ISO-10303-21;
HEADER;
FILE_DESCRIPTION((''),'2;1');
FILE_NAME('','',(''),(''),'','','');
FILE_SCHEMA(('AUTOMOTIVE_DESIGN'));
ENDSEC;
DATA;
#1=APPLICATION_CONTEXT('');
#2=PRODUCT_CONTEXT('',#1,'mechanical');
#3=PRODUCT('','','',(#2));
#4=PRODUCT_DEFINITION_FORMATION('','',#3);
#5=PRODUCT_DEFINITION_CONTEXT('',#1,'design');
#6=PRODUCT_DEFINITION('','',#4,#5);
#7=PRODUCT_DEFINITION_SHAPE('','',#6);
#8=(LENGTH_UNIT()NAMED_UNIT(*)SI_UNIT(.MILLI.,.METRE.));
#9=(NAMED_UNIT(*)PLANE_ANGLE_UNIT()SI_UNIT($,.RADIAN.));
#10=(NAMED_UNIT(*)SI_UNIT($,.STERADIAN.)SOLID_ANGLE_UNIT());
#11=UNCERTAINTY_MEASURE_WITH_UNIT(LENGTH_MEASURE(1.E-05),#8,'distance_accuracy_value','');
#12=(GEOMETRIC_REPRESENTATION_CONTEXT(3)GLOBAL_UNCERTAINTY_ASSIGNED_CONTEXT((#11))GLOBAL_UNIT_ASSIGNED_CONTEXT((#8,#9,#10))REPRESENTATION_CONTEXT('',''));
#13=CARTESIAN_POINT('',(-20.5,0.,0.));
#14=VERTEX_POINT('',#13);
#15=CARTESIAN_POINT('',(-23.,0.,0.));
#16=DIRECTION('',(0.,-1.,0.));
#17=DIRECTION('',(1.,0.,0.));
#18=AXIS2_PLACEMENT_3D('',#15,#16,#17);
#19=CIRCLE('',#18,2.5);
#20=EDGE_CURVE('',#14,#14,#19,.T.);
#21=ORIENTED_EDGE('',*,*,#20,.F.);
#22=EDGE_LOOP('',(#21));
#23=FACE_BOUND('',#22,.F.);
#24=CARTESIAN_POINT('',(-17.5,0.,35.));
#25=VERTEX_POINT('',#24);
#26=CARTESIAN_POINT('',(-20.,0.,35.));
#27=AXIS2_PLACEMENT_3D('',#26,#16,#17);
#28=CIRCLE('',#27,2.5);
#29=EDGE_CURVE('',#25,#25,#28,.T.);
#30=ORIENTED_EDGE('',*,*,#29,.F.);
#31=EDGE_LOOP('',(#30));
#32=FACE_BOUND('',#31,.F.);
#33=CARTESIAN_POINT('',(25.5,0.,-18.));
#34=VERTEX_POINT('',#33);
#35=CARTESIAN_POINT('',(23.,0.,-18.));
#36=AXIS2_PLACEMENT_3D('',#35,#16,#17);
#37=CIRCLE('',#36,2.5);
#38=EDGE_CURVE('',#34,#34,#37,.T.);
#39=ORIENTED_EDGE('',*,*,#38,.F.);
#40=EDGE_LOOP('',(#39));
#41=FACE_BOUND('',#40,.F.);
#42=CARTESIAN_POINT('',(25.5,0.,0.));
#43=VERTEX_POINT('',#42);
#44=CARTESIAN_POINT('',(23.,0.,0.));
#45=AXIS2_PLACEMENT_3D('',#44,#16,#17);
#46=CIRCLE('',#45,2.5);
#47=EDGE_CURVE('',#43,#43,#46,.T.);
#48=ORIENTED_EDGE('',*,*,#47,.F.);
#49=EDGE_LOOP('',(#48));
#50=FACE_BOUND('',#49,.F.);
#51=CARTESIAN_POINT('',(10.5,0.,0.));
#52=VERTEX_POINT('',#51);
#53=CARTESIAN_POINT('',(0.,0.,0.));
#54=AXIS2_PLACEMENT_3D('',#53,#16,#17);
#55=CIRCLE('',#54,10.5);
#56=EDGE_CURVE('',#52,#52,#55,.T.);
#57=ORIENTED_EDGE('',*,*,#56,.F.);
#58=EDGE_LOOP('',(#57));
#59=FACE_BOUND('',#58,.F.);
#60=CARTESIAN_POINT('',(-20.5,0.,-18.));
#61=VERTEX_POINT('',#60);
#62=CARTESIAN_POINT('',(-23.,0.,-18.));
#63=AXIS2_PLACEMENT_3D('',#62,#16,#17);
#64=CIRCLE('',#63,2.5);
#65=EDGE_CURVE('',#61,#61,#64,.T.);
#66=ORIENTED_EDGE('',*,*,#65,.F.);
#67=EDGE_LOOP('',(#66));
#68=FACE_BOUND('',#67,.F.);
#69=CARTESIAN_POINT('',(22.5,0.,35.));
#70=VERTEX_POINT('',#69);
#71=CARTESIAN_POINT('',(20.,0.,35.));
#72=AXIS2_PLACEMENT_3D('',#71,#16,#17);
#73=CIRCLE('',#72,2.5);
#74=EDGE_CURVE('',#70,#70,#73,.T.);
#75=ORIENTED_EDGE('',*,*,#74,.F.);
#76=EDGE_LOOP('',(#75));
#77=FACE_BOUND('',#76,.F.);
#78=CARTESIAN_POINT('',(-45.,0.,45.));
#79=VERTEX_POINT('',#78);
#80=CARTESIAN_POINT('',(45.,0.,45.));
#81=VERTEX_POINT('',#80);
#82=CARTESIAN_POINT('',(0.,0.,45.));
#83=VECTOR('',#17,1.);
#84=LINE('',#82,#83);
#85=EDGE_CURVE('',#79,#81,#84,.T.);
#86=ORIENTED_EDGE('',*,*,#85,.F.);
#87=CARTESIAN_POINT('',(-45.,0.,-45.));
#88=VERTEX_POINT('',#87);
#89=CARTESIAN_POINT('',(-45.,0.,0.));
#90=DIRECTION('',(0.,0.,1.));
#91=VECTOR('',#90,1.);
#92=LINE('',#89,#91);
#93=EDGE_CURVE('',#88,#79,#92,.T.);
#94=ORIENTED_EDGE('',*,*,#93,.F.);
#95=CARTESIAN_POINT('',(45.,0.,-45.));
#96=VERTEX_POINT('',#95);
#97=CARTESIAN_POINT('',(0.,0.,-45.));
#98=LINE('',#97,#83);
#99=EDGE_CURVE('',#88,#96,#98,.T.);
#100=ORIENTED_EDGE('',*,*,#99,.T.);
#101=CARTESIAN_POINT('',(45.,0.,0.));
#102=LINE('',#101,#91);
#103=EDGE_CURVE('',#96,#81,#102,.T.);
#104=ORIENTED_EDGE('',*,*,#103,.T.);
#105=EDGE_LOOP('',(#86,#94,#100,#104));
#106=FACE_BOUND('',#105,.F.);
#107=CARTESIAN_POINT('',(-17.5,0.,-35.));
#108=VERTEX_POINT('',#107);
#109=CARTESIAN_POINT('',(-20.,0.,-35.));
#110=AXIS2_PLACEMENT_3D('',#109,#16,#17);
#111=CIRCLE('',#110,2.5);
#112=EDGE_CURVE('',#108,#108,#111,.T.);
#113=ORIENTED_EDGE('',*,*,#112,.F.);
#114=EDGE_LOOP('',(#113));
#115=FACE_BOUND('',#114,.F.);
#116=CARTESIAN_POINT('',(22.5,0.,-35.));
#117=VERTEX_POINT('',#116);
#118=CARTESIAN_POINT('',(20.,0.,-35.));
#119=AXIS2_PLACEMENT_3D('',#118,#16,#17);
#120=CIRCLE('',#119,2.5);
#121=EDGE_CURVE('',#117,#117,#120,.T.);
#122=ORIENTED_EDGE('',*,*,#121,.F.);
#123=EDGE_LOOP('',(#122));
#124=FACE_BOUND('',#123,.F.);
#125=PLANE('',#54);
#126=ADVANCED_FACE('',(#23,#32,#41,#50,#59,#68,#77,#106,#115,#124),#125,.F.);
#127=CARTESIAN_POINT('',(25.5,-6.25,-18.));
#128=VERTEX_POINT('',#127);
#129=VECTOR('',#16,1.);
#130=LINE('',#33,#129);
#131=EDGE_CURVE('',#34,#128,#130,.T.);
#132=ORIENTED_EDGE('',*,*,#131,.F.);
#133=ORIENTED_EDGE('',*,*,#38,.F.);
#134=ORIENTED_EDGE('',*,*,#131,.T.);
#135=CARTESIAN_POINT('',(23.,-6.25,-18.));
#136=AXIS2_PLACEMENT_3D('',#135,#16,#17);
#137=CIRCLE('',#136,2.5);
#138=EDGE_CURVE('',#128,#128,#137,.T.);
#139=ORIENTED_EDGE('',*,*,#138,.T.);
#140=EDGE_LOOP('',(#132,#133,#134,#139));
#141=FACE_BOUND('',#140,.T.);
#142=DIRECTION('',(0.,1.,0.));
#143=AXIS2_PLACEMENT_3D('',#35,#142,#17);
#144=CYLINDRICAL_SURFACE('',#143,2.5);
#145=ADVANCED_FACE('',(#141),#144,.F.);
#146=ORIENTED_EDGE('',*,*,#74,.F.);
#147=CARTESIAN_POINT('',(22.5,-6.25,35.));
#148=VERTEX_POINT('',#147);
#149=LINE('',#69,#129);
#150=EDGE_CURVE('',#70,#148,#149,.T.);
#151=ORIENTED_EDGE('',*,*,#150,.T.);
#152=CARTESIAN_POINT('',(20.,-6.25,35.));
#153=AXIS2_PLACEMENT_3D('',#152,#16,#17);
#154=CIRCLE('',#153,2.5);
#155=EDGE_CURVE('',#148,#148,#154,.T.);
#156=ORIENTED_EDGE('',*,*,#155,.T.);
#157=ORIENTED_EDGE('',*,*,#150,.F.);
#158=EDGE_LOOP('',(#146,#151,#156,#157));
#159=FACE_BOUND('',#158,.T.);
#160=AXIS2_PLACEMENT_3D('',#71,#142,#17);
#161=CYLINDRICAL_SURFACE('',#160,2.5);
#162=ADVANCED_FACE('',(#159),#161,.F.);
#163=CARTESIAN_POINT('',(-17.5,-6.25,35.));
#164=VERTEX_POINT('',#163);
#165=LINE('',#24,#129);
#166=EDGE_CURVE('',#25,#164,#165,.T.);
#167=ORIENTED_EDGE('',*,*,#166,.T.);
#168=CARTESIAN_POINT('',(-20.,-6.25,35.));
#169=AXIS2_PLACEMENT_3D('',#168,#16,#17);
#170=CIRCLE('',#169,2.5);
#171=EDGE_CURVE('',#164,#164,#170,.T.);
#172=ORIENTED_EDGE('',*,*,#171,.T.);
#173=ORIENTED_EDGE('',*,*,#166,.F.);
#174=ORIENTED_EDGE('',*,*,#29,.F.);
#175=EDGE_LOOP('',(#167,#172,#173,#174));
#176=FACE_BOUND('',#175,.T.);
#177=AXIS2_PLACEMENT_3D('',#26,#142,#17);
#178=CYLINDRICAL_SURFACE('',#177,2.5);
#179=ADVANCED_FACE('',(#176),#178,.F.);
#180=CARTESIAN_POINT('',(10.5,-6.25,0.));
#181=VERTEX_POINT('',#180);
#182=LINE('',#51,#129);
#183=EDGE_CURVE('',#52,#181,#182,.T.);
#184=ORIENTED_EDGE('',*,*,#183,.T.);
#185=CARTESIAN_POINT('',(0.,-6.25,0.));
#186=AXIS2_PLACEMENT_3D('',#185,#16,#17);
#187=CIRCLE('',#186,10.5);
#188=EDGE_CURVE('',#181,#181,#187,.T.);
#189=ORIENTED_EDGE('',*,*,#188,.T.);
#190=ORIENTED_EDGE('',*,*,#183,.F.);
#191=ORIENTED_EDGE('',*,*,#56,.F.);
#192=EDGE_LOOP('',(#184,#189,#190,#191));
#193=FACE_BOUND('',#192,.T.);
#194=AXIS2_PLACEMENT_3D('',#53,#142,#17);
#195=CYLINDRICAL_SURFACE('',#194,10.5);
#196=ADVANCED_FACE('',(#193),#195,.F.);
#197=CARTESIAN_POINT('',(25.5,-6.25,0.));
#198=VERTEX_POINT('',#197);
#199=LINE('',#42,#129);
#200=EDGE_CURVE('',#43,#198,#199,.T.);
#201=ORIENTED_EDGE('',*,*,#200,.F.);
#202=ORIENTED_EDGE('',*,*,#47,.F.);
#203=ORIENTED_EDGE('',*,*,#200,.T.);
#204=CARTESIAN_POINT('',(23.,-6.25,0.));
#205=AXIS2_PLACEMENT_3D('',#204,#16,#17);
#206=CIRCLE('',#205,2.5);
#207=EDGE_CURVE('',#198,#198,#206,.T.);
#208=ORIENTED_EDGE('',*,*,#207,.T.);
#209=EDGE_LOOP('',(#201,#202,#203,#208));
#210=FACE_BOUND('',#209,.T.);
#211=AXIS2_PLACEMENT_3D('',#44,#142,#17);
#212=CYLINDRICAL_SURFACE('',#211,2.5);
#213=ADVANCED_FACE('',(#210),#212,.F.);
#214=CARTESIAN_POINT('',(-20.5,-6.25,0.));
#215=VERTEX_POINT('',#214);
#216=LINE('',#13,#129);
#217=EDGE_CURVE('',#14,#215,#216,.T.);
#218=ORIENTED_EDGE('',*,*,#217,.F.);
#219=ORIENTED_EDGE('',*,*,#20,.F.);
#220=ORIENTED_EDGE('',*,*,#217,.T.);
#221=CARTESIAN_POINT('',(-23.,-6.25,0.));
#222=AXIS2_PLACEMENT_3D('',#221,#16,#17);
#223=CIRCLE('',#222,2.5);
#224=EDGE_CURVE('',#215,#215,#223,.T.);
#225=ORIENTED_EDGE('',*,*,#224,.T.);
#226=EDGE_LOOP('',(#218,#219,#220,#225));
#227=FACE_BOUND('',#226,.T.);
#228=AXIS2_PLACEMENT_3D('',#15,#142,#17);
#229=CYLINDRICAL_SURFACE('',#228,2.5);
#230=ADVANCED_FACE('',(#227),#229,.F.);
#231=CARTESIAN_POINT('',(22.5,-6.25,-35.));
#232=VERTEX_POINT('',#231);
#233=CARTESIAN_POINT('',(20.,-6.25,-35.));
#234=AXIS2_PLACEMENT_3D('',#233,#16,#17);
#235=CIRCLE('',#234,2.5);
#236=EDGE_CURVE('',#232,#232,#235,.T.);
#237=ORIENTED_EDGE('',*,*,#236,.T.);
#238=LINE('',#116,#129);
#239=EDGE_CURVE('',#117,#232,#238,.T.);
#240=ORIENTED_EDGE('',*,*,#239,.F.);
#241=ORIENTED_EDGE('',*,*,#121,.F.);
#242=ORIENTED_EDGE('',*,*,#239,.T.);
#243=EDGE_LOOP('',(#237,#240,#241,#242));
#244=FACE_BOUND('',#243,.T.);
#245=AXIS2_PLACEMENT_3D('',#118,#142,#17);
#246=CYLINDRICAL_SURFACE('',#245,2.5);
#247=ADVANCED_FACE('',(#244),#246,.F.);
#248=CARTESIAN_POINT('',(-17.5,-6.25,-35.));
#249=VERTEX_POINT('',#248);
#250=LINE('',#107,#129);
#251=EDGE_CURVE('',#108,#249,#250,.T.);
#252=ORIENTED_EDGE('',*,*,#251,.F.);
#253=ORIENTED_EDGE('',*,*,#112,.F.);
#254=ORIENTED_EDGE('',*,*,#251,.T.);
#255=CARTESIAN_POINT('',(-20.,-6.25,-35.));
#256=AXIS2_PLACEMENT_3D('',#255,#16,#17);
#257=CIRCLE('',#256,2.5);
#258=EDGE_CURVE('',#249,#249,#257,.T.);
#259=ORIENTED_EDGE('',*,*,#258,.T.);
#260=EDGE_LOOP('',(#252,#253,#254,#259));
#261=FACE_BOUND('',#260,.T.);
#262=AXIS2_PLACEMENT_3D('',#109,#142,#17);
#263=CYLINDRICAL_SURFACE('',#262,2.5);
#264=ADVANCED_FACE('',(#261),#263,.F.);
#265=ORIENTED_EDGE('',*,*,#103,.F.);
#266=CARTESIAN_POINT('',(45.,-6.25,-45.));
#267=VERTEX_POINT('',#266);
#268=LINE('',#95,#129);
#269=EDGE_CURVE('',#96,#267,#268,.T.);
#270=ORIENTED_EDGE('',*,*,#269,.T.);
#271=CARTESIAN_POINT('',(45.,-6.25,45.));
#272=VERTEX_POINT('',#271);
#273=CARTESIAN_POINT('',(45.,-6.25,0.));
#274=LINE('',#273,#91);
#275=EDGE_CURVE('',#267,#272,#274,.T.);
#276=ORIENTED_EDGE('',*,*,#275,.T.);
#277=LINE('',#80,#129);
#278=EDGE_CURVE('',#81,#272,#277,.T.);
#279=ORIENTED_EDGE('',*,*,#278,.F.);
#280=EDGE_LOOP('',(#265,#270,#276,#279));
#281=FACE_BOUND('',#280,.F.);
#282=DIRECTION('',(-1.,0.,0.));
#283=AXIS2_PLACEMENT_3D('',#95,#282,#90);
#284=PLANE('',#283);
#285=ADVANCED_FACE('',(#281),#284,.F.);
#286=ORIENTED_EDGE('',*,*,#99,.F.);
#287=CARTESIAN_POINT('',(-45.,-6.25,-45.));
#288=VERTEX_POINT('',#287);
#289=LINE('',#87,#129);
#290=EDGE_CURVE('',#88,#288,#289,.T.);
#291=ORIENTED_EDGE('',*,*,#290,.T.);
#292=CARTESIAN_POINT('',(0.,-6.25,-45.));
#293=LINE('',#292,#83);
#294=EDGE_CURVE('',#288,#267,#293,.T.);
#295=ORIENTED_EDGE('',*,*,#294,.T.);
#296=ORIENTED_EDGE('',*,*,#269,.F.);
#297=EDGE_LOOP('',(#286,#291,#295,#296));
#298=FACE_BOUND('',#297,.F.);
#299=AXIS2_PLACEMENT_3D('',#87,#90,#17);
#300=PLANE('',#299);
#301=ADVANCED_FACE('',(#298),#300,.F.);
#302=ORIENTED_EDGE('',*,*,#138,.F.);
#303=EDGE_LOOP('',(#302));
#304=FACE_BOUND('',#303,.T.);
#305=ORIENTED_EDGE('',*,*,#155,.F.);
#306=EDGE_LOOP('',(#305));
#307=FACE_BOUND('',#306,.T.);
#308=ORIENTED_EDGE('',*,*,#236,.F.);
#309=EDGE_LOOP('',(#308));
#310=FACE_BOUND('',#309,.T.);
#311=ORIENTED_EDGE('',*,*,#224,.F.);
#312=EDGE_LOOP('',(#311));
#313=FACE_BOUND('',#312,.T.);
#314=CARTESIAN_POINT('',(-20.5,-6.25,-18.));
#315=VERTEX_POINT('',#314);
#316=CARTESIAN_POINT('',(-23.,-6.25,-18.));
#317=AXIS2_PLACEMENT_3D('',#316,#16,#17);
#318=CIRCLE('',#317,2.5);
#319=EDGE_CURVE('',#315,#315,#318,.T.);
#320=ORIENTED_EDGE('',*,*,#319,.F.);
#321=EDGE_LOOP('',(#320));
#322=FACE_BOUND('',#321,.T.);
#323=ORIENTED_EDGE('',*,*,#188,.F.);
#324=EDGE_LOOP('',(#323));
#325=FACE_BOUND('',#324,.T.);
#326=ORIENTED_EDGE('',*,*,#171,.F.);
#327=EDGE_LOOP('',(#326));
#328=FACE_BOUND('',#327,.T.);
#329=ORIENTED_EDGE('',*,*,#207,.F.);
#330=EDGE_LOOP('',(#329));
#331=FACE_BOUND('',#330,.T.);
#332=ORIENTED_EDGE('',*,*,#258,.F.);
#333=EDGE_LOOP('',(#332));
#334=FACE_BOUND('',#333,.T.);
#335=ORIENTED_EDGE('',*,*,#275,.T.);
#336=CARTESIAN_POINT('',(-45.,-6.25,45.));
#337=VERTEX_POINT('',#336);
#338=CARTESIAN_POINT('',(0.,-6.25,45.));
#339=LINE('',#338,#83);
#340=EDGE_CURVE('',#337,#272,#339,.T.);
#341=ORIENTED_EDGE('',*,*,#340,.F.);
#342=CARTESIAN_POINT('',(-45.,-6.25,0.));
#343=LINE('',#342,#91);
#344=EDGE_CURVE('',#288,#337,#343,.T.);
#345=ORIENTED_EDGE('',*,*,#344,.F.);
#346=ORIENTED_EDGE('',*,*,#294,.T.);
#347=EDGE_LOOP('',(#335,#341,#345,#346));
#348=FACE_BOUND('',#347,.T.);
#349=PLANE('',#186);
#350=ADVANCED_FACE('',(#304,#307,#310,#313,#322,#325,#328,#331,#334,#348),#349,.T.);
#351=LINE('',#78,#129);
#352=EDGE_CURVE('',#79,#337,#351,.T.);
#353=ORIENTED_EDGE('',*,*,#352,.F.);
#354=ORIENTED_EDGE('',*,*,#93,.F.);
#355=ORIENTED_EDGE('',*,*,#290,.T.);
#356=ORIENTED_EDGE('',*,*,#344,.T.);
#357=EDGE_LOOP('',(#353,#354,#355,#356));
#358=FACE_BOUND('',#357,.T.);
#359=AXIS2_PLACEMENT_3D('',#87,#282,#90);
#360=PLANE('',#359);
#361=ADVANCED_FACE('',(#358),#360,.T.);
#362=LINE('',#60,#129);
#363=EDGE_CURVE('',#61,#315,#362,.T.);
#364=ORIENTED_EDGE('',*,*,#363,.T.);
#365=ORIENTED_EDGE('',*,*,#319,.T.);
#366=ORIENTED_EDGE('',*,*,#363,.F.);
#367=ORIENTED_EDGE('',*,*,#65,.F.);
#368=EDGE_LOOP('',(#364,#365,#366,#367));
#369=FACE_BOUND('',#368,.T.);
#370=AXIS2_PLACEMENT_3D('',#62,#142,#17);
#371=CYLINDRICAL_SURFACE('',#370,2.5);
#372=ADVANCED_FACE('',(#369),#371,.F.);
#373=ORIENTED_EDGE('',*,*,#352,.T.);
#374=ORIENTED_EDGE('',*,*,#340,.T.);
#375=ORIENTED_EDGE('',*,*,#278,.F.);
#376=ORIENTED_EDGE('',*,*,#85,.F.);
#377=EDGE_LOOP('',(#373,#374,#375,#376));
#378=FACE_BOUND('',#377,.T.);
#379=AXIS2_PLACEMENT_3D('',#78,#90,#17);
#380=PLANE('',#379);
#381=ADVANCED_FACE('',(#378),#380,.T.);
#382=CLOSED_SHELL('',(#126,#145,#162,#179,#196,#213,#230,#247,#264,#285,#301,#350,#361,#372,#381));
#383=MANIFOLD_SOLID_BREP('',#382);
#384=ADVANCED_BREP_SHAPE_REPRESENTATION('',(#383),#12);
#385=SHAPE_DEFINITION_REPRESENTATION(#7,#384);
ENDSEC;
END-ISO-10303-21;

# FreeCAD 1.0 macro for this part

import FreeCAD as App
import Part
import Sketcher

V = App.Vector

doc = App.newDocument("Part")
body = doc.addObject("PartDesign::Body", "Body")

# Sketch on XZ plane
sketch1 = body.newObject("Sketcher::SketchObject", "Sketch")
sketch1.AttachmentSupport = (doc.getObject("XZ_Plane"), [""])
sketch1.MapMode = "FlatFace"
sketch1.addGeometry(Part.LineSegment(V(-45, 45, 0), V(-45, -45, 0)), False)
sketch1.addGeometry(Part.LineSegment(V(-45, -45, 0), V(45, -45, 0)), False)
sketch1.addGeometry(Part.LineSegment(V(45, -45, 0), V(45, 45, 0)), False)
sketch1.addGeometry(Part.LineSegment(V(45, 45, 0), V(-45, 45, 0)), False)
sketch1.addGeometry(Part.Circle(V(-20, -35, 0), V(0, 0, 1), 2.5), False)
sketch1.addGeometry(Part.Circle(V(-23, -18, 0), V(0, 0, 1), 2.5), False)
sketch1.addGeometry(Part.Circle(V(20, -35, 0), V(0, 0, 1), 2.5), False)
sketch1.addGeometry(Part.Circle(V(23, -18, 0), V(0, 0, 1), 2.5), False)
sketch1.addGeometry(Part.Circle(V(-23, 0, 0), V(0, 0, 1), 2.5), False)
sketch1.addGeometry(Part.Circle(V(-20, 35, 0), V(0, 0, 1), 2.5), False)
sketch1.addGeometry(Part.Circle(V(0, 0, 0), V(0, 0, 1), 10.5), False)
sketch1.addGeometry(Part.Circle(V(23, 0, 0), V(0, 0, 1), 2.5), False)
sketch1.addGeometry(Part.Circle(V(20, 35, 0), V(0, 0, 1), 2.5), False)
sketch1.addConstraint(Sketcher.Constraint("Coincident", 0, 2, 1, 1))
sketch1.addConstraint(Sketcher.Constraint("Coincident", 1, 2, 2, 1))
sketch1.addConstraint(Sketcher.Constraint("Coincident", 2, 2, 3, 1))
sketch1.addConstraint(Sketcher.Constraint("Coincident", 3, 2, 0, 1))
sketch1.addConstraint(Sketcher.Constraint("Vertical", 0))
sketch1.addConstraint(Sketcher.Constraint("Horizontal", 1))
sketch1.addConstraint(Sketcher.Constraint("Vertical", 2))
sketch1.addConstraint(Sketcher.Constraint("Horizontal", 3))
sketch1.addConstraint(Sketcher.Constraint("Coincident", 10, 3, -1, 1))
sketch1.addConstraint(Sketcher.Constraint("Equal", 4, 5))
sketch1.addConstraint(Sketcher.Constraint("Equal", 5, 6))
sketch1.addConstraint(Sketcher.Constraint("Equal", 6, 7))
sketch1.addConstraint(Sketcher.Constraint("Equal", 7, 8))
sketch1.addConstraint(Sketcher.Constraint("Equal", 8, 9))
sketch1.addConstraint(Sketcher.Constraint("Equal", 9, 11))
sketch1.addConstraint(Sketcher.Constraint("Equal", 11, 12))
sketch1.addConstraint(Sketcher.Constraint("Symmetric", 6, 3, 9, 3, -1, 1))
sketch1.addConstraint(Sketcher.Constraint("Symmetric", 8, 3, 11, 3, -1, 1))
sketch1.addConstraint(Sketcher.Constraint("Symmetric", 4, 3, 12, 3, -1, 1))
sketch1.addConstraint(Sketcher.Constraint("Symmetric", 0, 2, 2, 2, -1, 1))
sketch1.addConstraint(Sketcher.Constraint("Symmetric", 4, 3, 6, 3, -2))
sketch1.addConstraint(Sketcher.Constraint("Symmetric", 5, 3, 7, 3, -2))
sketch1.addConstraint(Sketcher.Constraint("PointOnObject", 8, 3, -1))
sketch1.addConstraint(Sketcher.Constraint("Vertical", 5, 3, 8, 3))
sketch1.addConstraint(Sketcher.Constraint("Equal", 3, 0))
sketch1.addConstraint(Sketcher.Constraint("Diameter", 4, 5.0))
sketch1.addConstraint(Sketcher.Constraint("Diameter", 10, 21.0))
sketch1.addConstraint(Sketcher.Constraint("DistanceX", 1, 1, 1, 2, 90.0))
sketch1.addConstraint(Sketcher.Constraint("DistanceX", 4, 3, -1, 1, 20.0))
sketch1.addConstraint(Sketcher.Constraint("DistanceY", 4, 3, -1, 1, 35.0))
sketch1.addConstraint(Sketcher.Constraint("DistanceX", 5, 3, -1, 1, 23.0))
sketch1.addConstraint(Sketcher.Constraint("DistanceY", 5, 3, -1, 1, 18.0))
pad1 = body.newObject("PartDesign::Pad", "Pad")
pad1.Profile = sketch1
pad1.Length = 6.25

doc.recompute()
